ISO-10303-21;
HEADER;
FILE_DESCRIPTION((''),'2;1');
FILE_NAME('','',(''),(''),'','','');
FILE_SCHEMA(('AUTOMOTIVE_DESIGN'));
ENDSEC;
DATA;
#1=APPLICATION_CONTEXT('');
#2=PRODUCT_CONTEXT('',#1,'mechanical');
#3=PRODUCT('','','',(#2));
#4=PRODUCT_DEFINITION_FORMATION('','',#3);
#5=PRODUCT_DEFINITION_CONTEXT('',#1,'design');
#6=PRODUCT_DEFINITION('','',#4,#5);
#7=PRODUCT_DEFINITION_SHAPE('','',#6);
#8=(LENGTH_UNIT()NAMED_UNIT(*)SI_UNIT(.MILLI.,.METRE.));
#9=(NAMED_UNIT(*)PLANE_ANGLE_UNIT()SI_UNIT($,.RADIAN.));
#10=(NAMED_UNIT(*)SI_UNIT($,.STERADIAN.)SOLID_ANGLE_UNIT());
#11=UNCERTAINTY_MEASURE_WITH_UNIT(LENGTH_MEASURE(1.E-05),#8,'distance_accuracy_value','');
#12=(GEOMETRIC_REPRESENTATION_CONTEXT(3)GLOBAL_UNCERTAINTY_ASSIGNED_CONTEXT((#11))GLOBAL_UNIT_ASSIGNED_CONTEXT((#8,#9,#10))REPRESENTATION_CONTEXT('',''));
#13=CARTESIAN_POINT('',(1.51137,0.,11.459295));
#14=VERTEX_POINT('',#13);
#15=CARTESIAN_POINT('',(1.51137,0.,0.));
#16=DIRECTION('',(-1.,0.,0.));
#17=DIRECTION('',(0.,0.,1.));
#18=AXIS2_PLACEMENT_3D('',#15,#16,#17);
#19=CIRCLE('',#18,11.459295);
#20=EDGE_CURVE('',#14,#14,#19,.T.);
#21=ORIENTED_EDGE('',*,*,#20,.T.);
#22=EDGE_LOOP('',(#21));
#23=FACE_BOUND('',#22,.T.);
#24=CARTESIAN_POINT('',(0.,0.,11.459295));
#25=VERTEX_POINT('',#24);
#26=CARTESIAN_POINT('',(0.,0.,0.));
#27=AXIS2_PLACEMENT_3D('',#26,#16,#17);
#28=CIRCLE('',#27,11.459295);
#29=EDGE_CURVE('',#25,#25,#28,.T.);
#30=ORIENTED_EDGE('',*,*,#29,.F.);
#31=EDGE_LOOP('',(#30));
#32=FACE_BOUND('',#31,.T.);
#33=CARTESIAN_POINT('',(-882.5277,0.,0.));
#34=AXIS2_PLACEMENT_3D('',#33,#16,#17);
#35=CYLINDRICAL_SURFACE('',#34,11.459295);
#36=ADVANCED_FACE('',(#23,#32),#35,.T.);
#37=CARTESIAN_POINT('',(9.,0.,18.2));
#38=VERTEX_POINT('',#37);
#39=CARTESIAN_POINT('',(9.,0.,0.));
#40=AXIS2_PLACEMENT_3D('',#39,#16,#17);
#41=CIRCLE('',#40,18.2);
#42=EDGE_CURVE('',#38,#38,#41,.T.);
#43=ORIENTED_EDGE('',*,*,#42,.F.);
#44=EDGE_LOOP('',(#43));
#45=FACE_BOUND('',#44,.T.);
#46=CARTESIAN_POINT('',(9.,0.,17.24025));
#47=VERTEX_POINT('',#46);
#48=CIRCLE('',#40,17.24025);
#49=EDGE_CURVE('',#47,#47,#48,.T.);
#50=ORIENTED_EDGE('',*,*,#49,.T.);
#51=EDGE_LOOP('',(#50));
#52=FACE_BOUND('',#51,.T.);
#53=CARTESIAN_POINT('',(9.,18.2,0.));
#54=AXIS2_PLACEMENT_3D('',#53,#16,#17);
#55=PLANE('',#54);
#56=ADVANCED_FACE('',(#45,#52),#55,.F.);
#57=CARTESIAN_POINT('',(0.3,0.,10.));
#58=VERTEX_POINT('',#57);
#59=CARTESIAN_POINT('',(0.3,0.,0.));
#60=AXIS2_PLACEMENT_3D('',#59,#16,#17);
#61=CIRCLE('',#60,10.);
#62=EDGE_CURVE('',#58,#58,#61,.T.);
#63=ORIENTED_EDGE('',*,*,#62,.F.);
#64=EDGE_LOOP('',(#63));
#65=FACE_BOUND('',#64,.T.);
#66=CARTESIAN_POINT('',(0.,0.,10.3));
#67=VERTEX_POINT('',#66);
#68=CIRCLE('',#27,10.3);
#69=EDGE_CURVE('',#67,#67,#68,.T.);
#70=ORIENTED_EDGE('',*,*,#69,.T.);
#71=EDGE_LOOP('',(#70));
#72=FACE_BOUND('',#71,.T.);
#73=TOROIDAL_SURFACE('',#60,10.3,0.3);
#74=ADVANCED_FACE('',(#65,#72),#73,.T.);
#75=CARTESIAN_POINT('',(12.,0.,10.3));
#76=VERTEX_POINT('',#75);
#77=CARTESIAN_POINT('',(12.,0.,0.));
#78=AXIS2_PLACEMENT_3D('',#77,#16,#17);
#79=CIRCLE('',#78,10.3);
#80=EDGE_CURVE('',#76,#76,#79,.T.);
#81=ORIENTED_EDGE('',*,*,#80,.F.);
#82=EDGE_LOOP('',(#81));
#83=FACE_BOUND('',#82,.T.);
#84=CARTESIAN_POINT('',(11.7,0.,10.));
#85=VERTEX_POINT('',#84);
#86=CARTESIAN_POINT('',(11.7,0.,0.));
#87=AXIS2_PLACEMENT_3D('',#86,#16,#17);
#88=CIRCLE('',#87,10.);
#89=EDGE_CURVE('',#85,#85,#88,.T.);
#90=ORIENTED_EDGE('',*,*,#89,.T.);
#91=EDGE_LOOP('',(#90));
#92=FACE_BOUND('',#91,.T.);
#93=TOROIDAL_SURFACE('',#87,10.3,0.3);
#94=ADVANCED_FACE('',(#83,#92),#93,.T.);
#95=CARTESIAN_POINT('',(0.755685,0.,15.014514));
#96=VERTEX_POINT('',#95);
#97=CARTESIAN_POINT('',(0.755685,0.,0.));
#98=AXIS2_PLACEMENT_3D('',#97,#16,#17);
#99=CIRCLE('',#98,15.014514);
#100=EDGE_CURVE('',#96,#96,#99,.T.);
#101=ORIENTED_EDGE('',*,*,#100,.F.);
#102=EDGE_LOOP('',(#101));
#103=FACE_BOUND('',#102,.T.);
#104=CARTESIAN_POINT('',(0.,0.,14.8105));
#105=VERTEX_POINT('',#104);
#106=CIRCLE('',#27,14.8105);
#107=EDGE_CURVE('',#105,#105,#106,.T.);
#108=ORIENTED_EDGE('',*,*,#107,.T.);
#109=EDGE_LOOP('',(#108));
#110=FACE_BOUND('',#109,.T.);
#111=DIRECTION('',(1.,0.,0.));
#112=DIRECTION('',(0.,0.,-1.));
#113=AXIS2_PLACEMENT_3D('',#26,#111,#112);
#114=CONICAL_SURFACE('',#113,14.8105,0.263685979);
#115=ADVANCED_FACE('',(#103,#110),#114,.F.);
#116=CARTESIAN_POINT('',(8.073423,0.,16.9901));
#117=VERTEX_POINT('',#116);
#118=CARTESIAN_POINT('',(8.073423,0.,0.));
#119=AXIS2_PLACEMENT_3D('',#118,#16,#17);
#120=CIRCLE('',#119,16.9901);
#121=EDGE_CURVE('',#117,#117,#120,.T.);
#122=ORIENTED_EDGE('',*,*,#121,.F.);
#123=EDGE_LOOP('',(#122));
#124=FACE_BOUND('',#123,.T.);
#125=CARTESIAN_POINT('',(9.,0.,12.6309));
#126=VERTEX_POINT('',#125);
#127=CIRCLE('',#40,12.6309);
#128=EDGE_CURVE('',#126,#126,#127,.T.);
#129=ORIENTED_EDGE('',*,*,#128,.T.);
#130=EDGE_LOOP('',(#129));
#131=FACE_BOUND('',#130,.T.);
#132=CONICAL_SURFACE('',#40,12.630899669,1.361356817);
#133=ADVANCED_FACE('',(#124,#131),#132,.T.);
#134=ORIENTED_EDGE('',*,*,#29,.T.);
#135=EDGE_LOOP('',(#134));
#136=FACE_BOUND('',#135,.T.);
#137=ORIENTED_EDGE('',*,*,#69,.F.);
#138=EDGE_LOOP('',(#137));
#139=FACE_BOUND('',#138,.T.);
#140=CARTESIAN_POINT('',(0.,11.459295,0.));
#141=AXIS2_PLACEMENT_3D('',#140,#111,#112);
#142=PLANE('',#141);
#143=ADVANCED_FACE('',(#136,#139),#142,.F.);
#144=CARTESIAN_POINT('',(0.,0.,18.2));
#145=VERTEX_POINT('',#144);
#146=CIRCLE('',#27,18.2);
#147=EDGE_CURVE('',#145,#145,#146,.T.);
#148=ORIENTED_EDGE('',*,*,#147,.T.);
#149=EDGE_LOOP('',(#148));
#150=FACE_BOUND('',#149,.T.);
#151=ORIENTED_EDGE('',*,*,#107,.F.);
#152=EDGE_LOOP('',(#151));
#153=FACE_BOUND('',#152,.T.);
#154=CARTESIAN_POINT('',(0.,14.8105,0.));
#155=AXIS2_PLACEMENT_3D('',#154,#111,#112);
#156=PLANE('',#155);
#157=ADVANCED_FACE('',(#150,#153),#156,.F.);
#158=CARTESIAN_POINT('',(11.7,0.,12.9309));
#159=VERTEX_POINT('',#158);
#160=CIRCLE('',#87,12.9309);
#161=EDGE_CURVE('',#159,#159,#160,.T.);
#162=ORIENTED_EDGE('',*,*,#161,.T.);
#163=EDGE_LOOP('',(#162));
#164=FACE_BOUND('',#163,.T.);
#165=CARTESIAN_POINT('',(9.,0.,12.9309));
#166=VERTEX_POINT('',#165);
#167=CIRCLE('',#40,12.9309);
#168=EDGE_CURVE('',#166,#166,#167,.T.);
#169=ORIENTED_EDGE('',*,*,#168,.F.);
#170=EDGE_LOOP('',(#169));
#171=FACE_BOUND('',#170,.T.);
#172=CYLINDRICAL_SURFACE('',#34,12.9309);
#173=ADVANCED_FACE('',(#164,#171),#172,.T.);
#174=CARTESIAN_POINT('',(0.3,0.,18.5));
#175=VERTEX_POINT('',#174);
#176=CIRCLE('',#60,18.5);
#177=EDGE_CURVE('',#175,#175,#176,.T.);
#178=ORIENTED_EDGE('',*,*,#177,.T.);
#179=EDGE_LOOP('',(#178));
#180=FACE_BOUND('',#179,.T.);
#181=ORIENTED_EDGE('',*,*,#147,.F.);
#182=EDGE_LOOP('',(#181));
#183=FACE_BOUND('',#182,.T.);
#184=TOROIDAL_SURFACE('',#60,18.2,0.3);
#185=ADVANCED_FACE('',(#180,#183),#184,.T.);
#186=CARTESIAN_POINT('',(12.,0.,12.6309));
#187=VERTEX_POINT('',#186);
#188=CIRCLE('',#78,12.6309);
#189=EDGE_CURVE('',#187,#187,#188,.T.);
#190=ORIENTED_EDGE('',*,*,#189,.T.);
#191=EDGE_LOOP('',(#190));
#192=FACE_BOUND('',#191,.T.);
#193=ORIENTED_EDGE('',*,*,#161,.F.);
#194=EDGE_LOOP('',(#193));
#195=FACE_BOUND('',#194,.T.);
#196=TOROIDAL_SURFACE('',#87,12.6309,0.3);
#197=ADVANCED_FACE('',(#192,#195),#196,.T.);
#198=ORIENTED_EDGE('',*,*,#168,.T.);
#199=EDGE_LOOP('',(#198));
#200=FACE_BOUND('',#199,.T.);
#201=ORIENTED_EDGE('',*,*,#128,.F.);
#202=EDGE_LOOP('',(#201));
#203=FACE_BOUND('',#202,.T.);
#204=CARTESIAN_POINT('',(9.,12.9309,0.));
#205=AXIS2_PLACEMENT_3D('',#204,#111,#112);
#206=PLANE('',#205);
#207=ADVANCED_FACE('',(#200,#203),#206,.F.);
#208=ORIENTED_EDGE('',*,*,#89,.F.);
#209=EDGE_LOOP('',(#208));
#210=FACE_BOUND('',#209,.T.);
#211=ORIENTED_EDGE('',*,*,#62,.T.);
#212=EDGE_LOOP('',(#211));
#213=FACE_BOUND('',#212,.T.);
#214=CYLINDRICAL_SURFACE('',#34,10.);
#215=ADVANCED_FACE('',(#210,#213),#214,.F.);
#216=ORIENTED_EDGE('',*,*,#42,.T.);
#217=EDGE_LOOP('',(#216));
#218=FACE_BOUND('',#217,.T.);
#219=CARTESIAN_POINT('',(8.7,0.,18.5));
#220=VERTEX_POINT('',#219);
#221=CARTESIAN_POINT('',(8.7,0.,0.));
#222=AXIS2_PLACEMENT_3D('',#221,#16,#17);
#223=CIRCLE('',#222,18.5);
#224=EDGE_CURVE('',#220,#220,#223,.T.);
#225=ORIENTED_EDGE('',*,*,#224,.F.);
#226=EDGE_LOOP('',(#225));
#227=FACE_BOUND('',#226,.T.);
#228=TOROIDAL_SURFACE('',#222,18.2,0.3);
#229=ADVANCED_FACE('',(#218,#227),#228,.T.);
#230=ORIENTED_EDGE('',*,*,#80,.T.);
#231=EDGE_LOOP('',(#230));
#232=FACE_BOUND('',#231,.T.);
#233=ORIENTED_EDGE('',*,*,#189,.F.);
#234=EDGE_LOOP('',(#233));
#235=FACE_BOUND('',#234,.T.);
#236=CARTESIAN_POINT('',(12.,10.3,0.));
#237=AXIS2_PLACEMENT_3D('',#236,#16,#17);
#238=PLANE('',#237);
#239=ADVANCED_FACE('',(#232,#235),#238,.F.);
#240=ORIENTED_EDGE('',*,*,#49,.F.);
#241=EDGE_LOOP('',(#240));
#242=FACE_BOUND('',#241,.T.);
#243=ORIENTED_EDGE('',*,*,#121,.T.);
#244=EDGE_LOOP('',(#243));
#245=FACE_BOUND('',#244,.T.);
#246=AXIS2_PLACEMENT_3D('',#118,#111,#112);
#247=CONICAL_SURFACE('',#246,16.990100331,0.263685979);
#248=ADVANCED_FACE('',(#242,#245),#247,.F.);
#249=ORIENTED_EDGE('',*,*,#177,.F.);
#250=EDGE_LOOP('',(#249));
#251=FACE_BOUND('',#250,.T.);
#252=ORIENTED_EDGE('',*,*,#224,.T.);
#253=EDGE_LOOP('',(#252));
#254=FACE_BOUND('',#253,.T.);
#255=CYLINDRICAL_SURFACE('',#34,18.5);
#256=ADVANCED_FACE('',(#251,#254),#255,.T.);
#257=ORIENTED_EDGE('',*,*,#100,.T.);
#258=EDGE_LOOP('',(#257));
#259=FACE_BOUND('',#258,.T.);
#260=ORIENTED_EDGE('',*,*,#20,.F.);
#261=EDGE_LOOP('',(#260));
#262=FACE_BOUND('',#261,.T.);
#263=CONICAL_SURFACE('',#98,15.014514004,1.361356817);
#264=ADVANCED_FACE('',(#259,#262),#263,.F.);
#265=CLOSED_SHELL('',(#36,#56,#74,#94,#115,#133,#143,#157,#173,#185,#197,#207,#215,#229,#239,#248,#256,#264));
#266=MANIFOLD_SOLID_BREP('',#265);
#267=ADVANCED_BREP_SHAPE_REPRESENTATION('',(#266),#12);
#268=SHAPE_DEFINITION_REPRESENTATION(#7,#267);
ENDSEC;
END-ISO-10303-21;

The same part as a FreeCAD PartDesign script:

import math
import FreeCAD as App
import Part
import Sketcher

V = App.Vector
Q = App.Units.Quantity

doc = App.newDocument("Part")
body = doc.addObject("PartDesign::Body", "Body")

# Sketch on XY plane
sketch1 = doc.addObject("Sketcher::SketchObject", "Sketch")
body.addObject(sketch1)
sketch1.AttachmentSupport = (doc.XY_Plane, [""])
sketch1.MapMode = "FlatFace"
sketch1.addGeometry([
    Part.LineSegment(V(0, 14.81, 0), V(0.76, 15.01, 0)),  # 0
    Part.LineSegment(V(0.76, 15.01, 0), V(1.51, 11.46, 0)),  # 1
    Part.LineSegment(V(1.51, 11.46, 0), V(0, 11.46, 0)),  # 2
    Part.LineSegment(V(0, 11.46, 0), V(0, 10.3, 0)),  # 3
    Part.ArcOfCircle(Part.Circle(V(0.3, 10.3, 0), V(0, 0, 1), 0.3), math.radians(-180), math.radians(-90)),  # 4
    Part.LineSegment(V(0.3, 10, 0), V(11.7, 10, 0)),  # 5
    Part.ArcOfCircle(Part.Circle(V(11.7, 10.3, 0), V(0, 0, 1), 0.3), math.radians(-90), math.radians(0)),  # 6
    Part.LineSegment(V(12, 10.3, 0), V(12, 12.63, 0)),  # 7
    Part.ArcOfCircle(Part.Circle(V(11.7, 12.63, 0), V(0, 0, 1), 0.3), math.radians(0), math.radians(90)),  # 8
    Part.LineSegment(V(11.7, 12.93, 0), V(9, 12.93, 0)),  # 9
    Part.LineSegment(V(9, 12.93, 0), V(9, 12.63, 0)),  # 10
    Part.LineSegment(V(9, 12.63, 0), V(8.07, 16.99, 0)),  # 11
    Part.LineSegment(V(8.07, 16.99, 0), V(9, 17.24, 0)),  # 12
    Part.LineSegment(V(9, 17.24, 0), V(9, 18.2, 0)),  # 13
    Part.ArcOfCircle(Part.Circle(V(8.7, 18.2, 0), V(0, 0, 1), 0.3), math.radians(0), math.radians(90)),  # 14
    Part.LineSegment(V(8.7, 18.5, 0), V(0.3, 18.5, 0)),  # 15
    Part.ArcOfCircle(Part.Circle(V(0.3, 18.2, 0), V(0, 0, 1), 0.3), math.radians(90), math.radians(180)),  # 16
    Part.LineSegment(V(0, 18.2, 0), V(0, 14.81, 0)),  # 17
], False)
sketch1.addConstraint([
    Sketcher.Constraint("Coincident", 0, 2, 1, 1),
    Sketcher.Constraint("Coincident", 1, 2, 2, 1),
    Sketcher.Constraint("Coincident", 2, 2, 3, 1),
    Sketcher.Constraint("Tangent", 3, 2, 4, 1),
    Sketcher.Constraint("Tangent", 4, 2, 5, 1),
    Sketcher.Constraint("Tangent", 5, 2, 6, 1),
    Sketcher.Constraint("Tangent", 6, 2, 7, 1),
    Sketcher.Constraint("Tangent", 7, 2, 8, 1),
    Sketcher.Constraint("Tangent", 8, 2, 9, 1),
    Sketcher.Constraint("Coincident", 9, 2, 10, 1),
    Sketcher.Constraint("Coincident", 10, 2, 11, 1),
    Sketcher.Constraint("Coincident", 11, 2, 12, 1),
    Sketcher.Constraint("Coincident", 12, 2, 13, 1),
    Sketcher.Constraint("Tangent", 13, 2, 14, 1),
    Sketcher.Constraint("Tangent", 14, 2, 15, 1),
    Sketcher.Constraint("Tangent", 15, 2, 16, 1),
    Sketcher.Constraint("Tangent", 16, 2, 17, 1),
    Sketcher.Constraint("Coincident", 17, 2, 0, 1),
    Sketcher.Constraint("Horizontal", 2),
    Sketcher.Constraint("Vertical", 3),
    Sketcher.Constraint("Horizontal", 5),
    Sketcher.Constraint("Vertical", 7),
    Sketcher.Constraint("Horizontal", 9),
    Sketcher.Constraint("Vertical", 10),
    Sketcher.Constraint("Vertical", 13),
    Sketcher.Constraint("Horizontal", 15),
    Sketcher.Constraint("Vertical", 17),
    Sketcher.Constraint("Equal", 4, 6),
    Sketcher.Constraint("Equal", 6, 8),
    Sketcher.Constraint("Equal", 8, 14),
    Sketcher.Constraint("Equal", 14, 16),
    Sketcher.Constraint("PointOnObject", 2, 2, -2),
    Sketcher.Constraint("PointOnObject", 16, 2, -2),
    Sketcher.Constraint("Parallel", 1, 11),
    Sketcher.Constraint("Parallel", 0, 12),
    Sketcher.Constraint("Horizontal", 7, 2, 10, 2),
    Sketcher.Constraint("Vertical", 10, 2, 12, 2),
    Sketcher.Constraint("Radius", 4, 0.3),
    Sketcher.Constraint("Angle", 1, Q("-78 deg")),
    Sketcher.Constraint("DistanceX", 5, 1, 5, 2, 11.4),
    Sketcher.Constraint("DistanceX", 9, 2, 9, 1, 2.7),
    Sketcher.Constraint("DistanceY", -1, 1, 4, 2, 10.0),
    Sketcher.Constraint("DistanceY", -1, 1, 14, 3, 18.2),
    Sketcher.Constraint("DistanceY", 7, 1, 7, 2, 2.3309),
    Sketcher.Constraint("DistanceY", 17, 2, 17, 1, 3.3895),
    Sketcher.Constraint("DistanceX", 2, 2, 2, 1, 1.51137),
    Sketcher.Constraint("DistanceY", 13, 1, 13, 2, 0.95975),
    Sketcher.Constraint("DistanceY", -1, 1, 11, 2, 16.9901),
    Sketcher.Constraint("Distance", 0, 0.78274),
])
revolution = doc.addObject("PartDesign::Revolution", "Revolution")
body.addObject(revolution)
revolution.Profile = sketch1
revolution.ReferenceAxis = (sketch1, ["H_Axis"])
revolution.Angle = 360

doc.recompute()
